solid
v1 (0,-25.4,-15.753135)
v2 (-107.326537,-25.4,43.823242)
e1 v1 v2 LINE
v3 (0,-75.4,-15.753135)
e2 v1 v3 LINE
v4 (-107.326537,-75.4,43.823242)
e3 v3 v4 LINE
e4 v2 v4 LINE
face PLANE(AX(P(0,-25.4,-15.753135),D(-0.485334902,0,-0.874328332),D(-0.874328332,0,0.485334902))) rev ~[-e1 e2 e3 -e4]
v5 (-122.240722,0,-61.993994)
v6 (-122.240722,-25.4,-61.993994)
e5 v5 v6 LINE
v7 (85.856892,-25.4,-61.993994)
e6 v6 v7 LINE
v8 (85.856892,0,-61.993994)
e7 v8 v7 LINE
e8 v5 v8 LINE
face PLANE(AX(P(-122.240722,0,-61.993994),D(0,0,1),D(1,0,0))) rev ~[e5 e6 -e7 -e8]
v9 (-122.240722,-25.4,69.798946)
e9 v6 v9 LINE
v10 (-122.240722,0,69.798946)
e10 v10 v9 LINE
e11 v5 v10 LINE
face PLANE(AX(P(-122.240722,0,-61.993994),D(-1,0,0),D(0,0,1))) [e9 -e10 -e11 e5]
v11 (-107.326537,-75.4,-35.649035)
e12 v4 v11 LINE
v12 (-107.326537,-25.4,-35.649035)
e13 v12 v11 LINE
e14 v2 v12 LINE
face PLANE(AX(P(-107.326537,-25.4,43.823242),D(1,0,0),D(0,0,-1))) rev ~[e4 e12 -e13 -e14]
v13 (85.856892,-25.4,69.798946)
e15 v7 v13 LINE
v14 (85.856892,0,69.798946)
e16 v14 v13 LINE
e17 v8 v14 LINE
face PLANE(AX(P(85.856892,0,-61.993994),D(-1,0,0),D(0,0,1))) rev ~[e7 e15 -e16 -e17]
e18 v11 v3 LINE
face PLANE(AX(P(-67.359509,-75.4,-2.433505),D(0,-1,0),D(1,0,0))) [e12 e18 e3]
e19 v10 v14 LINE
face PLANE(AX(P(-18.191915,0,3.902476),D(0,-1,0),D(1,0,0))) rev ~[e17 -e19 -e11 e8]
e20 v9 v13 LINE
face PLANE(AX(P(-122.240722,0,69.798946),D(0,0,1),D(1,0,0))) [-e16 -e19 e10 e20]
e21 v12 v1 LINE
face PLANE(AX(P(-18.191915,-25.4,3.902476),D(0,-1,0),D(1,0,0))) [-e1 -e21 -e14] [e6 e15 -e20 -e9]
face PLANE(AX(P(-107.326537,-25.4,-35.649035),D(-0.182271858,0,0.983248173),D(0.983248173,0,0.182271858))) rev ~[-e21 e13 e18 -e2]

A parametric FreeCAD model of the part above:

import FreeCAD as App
import Part
import Sketcher
from FreeCAD import Vector
Q = App.Units.Quantity


def add_polygon(sketch, points):
    """Adds a closed chain of lines whose ends are joined by coincident constraints."""
    first, n = sketch.GeometryCount, len(points)
    for a, b in zip(points, points[1:] + points[:1]):
        sketch.addGeometry(Part.LineSegment(App.Vector(*a, 0), App.Vector(*b, 0)), False)
    for i in range(n):
        sketch.addConstraint(Sketcher.Constraint("Coincident", first + i, 2, first + (i + 1) % n, 1))

doc = App.newDocument("Part")
body = doc.addObject("PartDesign::Body", "Body")

sketch1 = body.newObject("Sketcher::SketchObject", "Sketch")
sketch1.AttachmentSupport = (doc.getObject("XZ_Plane"), [""])
sketch1.MapMode = "FlatFace"
add_polygon(sketch1, [(-122.240722, 69.798946), (-122.240722, -61.993994), (85.856892, -61.993994), (85.856892, 69.798946)])
sketch1.addConstraint(Sketcher.Constraint("Vertical", 0))
sketch1.addConstraint(Sketcher.Constraint("Horizontal", 1))
sketch1.addConstraint(Sketcher.Constraint("Vertical", 2))
sketch1.addConstraint(Sketcher.Constraint("Horizontal", 3))
sketch1.addConstraint(Sketcher.Constraint("DistanceY", 0, 2, 0, 1, Q("131.79294 mm")))
sketch1.addConstraint(Sketcher.Constraint("DistanceX", 1, 1, 1, 2, Q("208.097614 mm")))
sketch1.addConstraint(Sketcher.Constraint("DistanceX", -1, 1, 1, 2, Q("85.856892 mm")))
sketch1.addConstraint(Sketcher.Constraint("DistanceY", 0, 2, -1, 1, Q("61.993994 mm")))
pad1 = body.newObject("PartDesign::Pad", "Pad")
pad1.Profile = sketch1
pad1.Length = 25.4

sketch2 = body.newObject("Sketcher::SketchObject", "Sketch001")
sketch2.AttachmentSupport = (doc.getObject("XZ_Plane"), [""])
sketch2.MapMode = "FlatFace"
sketch2.AttachmentOffset = App.Placement(Vector(0, 0, 25.4), App.Rotation())
add_polygon(sketch2, [(-107.326537, -35.649035), (0, -15.753135), (-107.326537, 43.823242)])
sketch2.addConstraint(Sketcher.Constraint("Vertical", 2))
sketch2.addConstraint(Sketcher.Constraint("PointOnObject", 0, 2, -2))
sketch2.addConstraint(Sketcher.Constraint("DistanceY", 2, 2, 0, 2, Q("19.8959 mm")))
sketch2.addConstraint(Sketcher.Constraint("DistanceY", 2, 2, 2, 1, Q("79.472277 mm")))
sketch2.addConstraint(Sketcher.Constraint("Distance", 0, Q("109.155084 mm")))
sketch2.addConstraint(Sketcher.Constraint("DistanceY", 0, 2, -1, 1, Q("15.753135 mm")))
pad2 = body.newObject("PartDesign::Pad", "Pad001")
pad2.Profile = sketch2
pad2.Length = 50

doc.recompute()
